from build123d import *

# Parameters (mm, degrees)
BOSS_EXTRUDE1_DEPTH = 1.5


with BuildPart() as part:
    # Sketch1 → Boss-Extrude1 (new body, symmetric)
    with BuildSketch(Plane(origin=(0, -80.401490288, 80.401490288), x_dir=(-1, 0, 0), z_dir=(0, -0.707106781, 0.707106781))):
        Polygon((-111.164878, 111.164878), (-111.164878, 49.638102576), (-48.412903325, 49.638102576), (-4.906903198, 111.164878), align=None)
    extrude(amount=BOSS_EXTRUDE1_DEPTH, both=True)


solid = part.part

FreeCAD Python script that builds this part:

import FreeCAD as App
import Part
import Sketcher

V = App.Vector
Q = App.Units.Quantity


def add_polygon(sketch, points):
    """Adds a closed chain of lines whose ends are joined by coincident constraints."""
    first, n = sketch.GeometryCount, len(points)
    for a, b in zip(points, points[1:] + points[:1]):
        sketch.addGeometry(Part.LineSegment(App.Vector(*a, 0), App.Vector(*b, 0)), False)
    for i in range(n):
        sketch.addConstraint(Sketcher.Constraint("Coincident", first + i, 2, first + (i + 1) % n, 1))

doc = App.newDocument("Part")
body = doc.addObject("PartDesign::Body", "Body")

# Sketch on an angled plane
sketch1 = body.newObject("Sketcher::SketchObject", "Sketch")
sketch1.Placement = App.Placement(V(0, -80.40149, 80.40149), App.Rotation(V(-1, 0, 0), V(0, -0.707106781, -0.707106781), V(0, -0.707106781, 0.707106781), "ZXY"))
add_polygon(sketch1, [(-111, 111), (-111, 50), (-48, 50), (-5, 111)])  # lines 0-3
sketch1.addConstraint([
    Sketcher.Constraint("Vertical", 0),
    Sketcher.Constraint("Horizontal", 1),
    Sketcher.Constraint("Horizontal", 3),
    Sketcher.Constraint("DistanceX", 1, 2, 2, 2, Q("43.506 mm")),
    Sketcher.Constraint("DistanceX", 1, 1, 1, 2, Q("62.751975 mm")),
    Sketcher.Constraint("DistanceY", 0, 2, 0, 1, Q("61.526775 mm")),
    Sketcher.Constraint("DistanceX", 0, 2, -1, 1, Q("111.164878 mm")),
    Sketcher.Constraint("DistanceY", -1, 1, 0, 2, Q("49.638103 mm")),
])
pad1 = body.newObject("PartDesign::Pad", "Pad")
pad1.Profile = sketch1
pad1.Length = 3
pad1.Midplane = True

doc.recompute()
